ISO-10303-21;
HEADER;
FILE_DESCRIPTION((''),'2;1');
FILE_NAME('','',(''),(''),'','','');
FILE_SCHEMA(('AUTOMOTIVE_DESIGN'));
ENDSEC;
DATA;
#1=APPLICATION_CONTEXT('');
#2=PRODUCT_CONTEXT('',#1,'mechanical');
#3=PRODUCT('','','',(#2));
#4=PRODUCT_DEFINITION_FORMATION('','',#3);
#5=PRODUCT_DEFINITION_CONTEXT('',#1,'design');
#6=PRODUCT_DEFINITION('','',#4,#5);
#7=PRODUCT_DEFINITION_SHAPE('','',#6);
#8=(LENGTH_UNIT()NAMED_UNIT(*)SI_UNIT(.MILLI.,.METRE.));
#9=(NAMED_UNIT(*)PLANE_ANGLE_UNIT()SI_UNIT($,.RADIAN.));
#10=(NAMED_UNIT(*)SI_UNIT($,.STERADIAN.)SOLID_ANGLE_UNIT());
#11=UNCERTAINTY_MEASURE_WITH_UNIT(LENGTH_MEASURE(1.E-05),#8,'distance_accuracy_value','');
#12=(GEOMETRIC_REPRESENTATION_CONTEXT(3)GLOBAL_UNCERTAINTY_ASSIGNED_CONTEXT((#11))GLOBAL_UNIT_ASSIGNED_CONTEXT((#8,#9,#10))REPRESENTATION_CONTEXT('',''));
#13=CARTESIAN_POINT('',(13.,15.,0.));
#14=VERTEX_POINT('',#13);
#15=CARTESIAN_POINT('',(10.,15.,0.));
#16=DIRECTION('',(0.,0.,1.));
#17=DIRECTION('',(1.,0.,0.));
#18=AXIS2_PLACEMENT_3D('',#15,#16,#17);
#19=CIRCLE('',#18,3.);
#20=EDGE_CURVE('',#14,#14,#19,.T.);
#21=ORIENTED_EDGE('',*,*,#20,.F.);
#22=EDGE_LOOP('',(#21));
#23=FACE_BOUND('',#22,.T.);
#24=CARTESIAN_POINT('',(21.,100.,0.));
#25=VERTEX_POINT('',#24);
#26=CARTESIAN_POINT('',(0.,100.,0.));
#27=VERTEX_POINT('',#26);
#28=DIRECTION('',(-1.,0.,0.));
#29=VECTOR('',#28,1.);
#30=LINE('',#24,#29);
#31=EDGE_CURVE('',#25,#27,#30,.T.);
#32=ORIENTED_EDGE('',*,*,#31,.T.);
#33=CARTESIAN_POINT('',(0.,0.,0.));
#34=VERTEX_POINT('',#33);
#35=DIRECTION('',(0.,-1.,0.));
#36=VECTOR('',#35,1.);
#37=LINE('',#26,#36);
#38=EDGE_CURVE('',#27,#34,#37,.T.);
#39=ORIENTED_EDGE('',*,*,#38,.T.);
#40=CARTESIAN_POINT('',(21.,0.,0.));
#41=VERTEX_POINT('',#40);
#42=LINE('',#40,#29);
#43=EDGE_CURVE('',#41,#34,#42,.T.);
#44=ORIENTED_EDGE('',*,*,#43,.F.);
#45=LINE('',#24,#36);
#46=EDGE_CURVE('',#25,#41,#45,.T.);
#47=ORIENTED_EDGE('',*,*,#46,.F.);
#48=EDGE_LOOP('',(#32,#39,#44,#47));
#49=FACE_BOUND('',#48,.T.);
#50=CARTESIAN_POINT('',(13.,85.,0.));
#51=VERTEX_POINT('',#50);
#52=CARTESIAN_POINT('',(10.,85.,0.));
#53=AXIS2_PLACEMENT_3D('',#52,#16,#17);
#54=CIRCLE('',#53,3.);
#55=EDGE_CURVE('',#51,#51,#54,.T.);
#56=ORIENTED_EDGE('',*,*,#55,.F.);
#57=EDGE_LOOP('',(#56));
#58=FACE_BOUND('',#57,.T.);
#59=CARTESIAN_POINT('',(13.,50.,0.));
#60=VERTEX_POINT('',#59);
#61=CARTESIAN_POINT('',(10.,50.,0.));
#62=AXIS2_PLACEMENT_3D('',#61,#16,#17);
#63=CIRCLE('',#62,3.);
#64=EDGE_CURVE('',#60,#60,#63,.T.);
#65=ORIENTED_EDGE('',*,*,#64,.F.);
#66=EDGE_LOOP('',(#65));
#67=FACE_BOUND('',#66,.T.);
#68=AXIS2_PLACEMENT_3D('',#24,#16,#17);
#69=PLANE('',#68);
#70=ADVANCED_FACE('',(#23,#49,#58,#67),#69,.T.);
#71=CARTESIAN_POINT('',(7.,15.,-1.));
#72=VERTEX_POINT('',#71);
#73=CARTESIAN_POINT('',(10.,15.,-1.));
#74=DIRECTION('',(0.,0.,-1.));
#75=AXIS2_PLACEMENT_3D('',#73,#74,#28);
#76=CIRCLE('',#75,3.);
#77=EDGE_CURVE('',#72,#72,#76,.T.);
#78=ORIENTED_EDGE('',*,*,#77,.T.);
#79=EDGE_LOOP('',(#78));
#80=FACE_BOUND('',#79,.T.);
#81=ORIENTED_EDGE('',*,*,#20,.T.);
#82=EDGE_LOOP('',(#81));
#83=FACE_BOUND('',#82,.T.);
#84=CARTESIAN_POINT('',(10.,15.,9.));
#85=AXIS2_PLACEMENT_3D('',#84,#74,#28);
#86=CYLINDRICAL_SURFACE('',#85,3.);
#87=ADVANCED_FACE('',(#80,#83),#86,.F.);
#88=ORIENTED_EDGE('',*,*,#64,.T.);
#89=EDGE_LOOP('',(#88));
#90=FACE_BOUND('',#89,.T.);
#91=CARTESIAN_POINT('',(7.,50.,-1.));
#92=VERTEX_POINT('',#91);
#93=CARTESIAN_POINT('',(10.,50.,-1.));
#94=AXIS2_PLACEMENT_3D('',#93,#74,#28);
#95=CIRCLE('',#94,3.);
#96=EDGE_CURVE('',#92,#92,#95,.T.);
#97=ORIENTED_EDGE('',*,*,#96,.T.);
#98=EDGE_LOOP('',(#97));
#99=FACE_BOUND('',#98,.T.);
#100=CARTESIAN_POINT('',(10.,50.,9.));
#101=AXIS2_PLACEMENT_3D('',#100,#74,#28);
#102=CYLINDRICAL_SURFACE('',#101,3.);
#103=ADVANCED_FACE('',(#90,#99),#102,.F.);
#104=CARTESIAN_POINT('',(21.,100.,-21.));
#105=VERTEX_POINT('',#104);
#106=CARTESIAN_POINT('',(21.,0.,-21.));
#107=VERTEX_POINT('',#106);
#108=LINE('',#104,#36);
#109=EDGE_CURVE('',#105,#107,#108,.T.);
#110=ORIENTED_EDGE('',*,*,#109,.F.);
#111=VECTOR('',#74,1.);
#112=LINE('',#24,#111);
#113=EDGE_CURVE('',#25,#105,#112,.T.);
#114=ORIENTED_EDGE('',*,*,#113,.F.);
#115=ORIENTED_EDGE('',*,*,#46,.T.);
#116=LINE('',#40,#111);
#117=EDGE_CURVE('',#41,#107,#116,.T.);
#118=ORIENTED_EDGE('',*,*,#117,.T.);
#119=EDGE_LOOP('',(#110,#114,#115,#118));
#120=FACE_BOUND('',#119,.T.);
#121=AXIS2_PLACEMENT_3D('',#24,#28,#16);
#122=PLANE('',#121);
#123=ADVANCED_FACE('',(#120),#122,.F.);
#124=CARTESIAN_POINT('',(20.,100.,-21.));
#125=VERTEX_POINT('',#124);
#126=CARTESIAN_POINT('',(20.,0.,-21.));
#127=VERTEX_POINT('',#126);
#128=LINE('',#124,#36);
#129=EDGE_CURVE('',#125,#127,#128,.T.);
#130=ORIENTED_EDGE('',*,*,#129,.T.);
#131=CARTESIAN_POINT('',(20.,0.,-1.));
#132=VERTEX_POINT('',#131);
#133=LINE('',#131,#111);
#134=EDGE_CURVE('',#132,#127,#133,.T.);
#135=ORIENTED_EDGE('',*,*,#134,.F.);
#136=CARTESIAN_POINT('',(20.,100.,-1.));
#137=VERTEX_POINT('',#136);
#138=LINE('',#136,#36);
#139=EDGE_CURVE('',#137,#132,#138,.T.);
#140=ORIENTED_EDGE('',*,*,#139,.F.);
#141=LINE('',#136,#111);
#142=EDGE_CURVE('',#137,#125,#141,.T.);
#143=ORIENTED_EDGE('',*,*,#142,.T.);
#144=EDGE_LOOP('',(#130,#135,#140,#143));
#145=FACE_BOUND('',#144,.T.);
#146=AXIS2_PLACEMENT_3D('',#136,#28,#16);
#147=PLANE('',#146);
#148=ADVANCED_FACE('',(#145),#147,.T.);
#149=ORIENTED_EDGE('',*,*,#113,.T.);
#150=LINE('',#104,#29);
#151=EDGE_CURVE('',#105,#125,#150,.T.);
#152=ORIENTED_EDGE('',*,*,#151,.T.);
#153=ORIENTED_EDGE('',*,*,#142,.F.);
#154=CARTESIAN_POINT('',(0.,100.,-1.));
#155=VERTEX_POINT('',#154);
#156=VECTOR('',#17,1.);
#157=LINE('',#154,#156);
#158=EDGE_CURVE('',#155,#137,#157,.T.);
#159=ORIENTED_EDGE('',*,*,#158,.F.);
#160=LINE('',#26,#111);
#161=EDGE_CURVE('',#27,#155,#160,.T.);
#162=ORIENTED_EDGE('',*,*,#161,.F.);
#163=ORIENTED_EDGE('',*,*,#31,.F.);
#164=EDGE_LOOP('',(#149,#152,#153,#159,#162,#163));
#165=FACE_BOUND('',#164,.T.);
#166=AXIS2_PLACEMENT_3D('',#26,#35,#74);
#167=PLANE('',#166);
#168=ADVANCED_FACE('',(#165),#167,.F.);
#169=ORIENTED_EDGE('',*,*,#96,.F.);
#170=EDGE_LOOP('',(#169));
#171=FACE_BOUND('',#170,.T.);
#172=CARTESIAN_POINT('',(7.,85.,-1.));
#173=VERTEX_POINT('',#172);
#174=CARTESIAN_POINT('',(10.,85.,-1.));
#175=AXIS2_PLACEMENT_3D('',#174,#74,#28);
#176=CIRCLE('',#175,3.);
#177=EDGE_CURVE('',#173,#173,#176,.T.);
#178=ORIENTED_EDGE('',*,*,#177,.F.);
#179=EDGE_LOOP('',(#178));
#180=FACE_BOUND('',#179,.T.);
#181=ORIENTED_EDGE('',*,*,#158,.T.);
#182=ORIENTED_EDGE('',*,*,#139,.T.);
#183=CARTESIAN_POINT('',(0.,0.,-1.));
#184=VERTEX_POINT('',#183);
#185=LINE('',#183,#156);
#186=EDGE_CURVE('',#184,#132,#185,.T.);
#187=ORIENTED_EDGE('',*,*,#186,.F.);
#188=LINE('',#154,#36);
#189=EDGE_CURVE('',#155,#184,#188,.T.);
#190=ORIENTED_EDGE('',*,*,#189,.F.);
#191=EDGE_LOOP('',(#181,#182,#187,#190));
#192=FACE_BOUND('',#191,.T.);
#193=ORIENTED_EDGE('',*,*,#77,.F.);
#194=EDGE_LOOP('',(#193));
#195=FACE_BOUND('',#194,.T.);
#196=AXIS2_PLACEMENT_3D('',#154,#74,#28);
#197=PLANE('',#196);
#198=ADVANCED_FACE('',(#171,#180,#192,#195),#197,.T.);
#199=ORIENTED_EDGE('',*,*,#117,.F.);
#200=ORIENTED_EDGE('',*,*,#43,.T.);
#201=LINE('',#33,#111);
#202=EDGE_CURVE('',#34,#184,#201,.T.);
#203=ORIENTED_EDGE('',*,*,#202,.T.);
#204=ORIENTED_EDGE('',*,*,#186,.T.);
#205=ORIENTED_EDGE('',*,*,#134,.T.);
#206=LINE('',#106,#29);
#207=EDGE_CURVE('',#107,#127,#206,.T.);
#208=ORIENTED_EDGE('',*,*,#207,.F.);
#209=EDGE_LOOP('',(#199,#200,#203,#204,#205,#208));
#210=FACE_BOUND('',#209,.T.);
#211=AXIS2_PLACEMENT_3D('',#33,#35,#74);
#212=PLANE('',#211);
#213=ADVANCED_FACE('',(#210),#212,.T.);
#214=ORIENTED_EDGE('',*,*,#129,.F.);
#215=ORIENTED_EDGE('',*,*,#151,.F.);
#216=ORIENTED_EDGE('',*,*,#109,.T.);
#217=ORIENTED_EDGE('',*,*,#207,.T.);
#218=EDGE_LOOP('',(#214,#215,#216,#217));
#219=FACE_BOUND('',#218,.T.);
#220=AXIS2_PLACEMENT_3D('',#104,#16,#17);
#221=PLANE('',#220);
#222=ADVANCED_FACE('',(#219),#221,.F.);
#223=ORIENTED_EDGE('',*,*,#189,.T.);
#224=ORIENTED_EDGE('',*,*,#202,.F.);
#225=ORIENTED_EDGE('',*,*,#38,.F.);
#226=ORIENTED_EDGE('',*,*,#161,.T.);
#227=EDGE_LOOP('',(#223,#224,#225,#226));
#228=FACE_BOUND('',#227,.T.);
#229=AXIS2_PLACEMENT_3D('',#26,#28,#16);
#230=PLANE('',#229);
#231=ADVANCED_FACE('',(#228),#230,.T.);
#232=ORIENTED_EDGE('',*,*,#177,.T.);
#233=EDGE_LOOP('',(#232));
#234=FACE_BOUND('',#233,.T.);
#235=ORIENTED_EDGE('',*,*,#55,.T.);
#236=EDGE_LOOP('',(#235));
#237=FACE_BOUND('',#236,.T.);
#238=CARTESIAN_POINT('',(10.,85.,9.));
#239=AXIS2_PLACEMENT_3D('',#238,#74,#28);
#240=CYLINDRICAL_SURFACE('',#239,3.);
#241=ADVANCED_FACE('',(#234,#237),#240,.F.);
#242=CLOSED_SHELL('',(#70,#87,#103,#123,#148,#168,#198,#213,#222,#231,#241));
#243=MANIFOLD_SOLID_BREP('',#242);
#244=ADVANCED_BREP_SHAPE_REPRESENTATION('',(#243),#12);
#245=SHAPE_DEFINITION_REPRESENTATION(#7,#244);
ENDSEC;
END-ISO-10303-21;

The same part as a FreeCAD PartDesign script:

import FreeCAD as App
import Part
import Sketcher


def add_polygon(sketch, points):
    """Adds a closed chain of lines whose ends are joined by coincident constraints."""
    first, n = sketch.GeometryCount, len(points)
    for a, b in zip(points, points[1:] + points[:1]):
        sketch.addGeometry(Part.LineSegment(App.Vector(*a, 0), App.Vector(*b, 0)), False)
    for i in range(n):
        sketch.addConstraint(Sketcher.Constraint("Coincident", first + i, 2, first + (i + 1) % n, 1))

doc = App.newDocument("Part")
params = doc.addObject("Spreadsheet::Sheet", "Params")
for row, (alias, value) in enumerate([
    ("sketch1_width", "21 mm"),
    ("sketch1_width2", "1 mm"),
    ("pad1_length", "100 mm"),
    ("sketch2_diameter", "6 mm"),
    ("pocket1_length", "10 mm"),
], start=1):
    params.set(f"A{row}", alias)
    params.set(f"B{row}", "=" + value)
    params.setAlias(f"B{row}", alias)

body = doc.addObject("PartDesign::Body", "Body")

sketch1 = body.newObject("Sketcher::SketchObject", "Sketch")
sketch1.AttachmentSupport = (doc.getObject("XZ_Plane"), [""])
sketch1.MapMode = "FlatFace"
add_polygon(sketch1, [(0, -1), (0, 0), (21, 0), (21, -21), (20, -21), (20, -1)])
sketch1.addConstraint([
    Sketcher.Constraint("Vertical", 0),
    Sketcher.Constraint("Horizontal", 1),
    Sketcher.Constraint("Vertical", 2),
    Sketcher.Constraint("Horizontal", 3),
    Sketcher.Constraint("Vertical", 4),
    Sketcher.Constraint("Horizontal", 5),
    Sketcher.Constraint("Coincident", 0, 2, -1, 1),
    Sketcher.Constraint("Equal", 3, 0),
    Sketcher.Constraint("Equal", 1, 2),
    Sketcher.Constraint("DistanceX", 1, 1, 1, 2, 21.0),
    Sketcher.Constraint("DistanceX", 3, 2, 3, 1, 1.0),
])
sketch1.setExpression("Constraints[15]", "Params.sketch1_width")
sketch1.setExpression("Constraints[16]", "Params.sketch1_width2")
pad1 = body.newObject("PartDesign::Pad", "Pad")
pad1.Profile = sketch1
pad1.setExpression("Length", "Params.pad1_length")
pad1.Reversed = True

sketch2 = body.newObject("Sketcher::SketchObject", "Sketch001")
sketch2.AttachmentSupport = (doc.getObject("XY_Plane"), [""])
sketch2.MapMode = "FlatFace"
sketch2.AttachmentOffset = App.Placement(App.Vector(0, 0, -1), App.Rotation())
sketch2.addGeometry([
    Part.Circle(App.Vector(10, 15, 0), App.Vector(0, 0, 1), 3),
    Part.Circle(App.Vector(10, 50, 0), App.Vector(0, 0, 1), 3),
    Part.Circle(App.Vector(10, 85, 0), App.Vector(0, 0, 1), 3),
], False)
sketch2.addConstraint([
    Sketcher.Constraint("Equal", 0, 1),
    Sketcher.Constraint("Equal", 1, 2),
    Sketcher.Constraint("Vertical", 0, 3, 1, 3),
    Sketcher.Constraint("Vertical", 1, 3, 2, 3),
    Sketcher.Constraint("Diameter", 0, 6.0),
    Sketcher.Constraint("DistanceX", -1, 1, 0, 3, 10.0),
    Sketcher.Constraint("DistanceY", -1, 1, 0, 3, 15.0),
    Sketcher.Constraint("DistanceY", -1, 1, 1, 3, 50.0),
    Sketcher.Constraint("DistanceY", -1, 1, 2, 3, 85.0),
])
sketch2.setExpression("Constraints[4]", "Params.sketch2_diameter")
pocket1 = body.newObject("PartDesign::Pocket", "Pocket")
pocket1.Profile = sketch2
pocket1.setExpression("Length", "Params.pocket1_length")
pocket1.Reversed = True

doc.recompute()
